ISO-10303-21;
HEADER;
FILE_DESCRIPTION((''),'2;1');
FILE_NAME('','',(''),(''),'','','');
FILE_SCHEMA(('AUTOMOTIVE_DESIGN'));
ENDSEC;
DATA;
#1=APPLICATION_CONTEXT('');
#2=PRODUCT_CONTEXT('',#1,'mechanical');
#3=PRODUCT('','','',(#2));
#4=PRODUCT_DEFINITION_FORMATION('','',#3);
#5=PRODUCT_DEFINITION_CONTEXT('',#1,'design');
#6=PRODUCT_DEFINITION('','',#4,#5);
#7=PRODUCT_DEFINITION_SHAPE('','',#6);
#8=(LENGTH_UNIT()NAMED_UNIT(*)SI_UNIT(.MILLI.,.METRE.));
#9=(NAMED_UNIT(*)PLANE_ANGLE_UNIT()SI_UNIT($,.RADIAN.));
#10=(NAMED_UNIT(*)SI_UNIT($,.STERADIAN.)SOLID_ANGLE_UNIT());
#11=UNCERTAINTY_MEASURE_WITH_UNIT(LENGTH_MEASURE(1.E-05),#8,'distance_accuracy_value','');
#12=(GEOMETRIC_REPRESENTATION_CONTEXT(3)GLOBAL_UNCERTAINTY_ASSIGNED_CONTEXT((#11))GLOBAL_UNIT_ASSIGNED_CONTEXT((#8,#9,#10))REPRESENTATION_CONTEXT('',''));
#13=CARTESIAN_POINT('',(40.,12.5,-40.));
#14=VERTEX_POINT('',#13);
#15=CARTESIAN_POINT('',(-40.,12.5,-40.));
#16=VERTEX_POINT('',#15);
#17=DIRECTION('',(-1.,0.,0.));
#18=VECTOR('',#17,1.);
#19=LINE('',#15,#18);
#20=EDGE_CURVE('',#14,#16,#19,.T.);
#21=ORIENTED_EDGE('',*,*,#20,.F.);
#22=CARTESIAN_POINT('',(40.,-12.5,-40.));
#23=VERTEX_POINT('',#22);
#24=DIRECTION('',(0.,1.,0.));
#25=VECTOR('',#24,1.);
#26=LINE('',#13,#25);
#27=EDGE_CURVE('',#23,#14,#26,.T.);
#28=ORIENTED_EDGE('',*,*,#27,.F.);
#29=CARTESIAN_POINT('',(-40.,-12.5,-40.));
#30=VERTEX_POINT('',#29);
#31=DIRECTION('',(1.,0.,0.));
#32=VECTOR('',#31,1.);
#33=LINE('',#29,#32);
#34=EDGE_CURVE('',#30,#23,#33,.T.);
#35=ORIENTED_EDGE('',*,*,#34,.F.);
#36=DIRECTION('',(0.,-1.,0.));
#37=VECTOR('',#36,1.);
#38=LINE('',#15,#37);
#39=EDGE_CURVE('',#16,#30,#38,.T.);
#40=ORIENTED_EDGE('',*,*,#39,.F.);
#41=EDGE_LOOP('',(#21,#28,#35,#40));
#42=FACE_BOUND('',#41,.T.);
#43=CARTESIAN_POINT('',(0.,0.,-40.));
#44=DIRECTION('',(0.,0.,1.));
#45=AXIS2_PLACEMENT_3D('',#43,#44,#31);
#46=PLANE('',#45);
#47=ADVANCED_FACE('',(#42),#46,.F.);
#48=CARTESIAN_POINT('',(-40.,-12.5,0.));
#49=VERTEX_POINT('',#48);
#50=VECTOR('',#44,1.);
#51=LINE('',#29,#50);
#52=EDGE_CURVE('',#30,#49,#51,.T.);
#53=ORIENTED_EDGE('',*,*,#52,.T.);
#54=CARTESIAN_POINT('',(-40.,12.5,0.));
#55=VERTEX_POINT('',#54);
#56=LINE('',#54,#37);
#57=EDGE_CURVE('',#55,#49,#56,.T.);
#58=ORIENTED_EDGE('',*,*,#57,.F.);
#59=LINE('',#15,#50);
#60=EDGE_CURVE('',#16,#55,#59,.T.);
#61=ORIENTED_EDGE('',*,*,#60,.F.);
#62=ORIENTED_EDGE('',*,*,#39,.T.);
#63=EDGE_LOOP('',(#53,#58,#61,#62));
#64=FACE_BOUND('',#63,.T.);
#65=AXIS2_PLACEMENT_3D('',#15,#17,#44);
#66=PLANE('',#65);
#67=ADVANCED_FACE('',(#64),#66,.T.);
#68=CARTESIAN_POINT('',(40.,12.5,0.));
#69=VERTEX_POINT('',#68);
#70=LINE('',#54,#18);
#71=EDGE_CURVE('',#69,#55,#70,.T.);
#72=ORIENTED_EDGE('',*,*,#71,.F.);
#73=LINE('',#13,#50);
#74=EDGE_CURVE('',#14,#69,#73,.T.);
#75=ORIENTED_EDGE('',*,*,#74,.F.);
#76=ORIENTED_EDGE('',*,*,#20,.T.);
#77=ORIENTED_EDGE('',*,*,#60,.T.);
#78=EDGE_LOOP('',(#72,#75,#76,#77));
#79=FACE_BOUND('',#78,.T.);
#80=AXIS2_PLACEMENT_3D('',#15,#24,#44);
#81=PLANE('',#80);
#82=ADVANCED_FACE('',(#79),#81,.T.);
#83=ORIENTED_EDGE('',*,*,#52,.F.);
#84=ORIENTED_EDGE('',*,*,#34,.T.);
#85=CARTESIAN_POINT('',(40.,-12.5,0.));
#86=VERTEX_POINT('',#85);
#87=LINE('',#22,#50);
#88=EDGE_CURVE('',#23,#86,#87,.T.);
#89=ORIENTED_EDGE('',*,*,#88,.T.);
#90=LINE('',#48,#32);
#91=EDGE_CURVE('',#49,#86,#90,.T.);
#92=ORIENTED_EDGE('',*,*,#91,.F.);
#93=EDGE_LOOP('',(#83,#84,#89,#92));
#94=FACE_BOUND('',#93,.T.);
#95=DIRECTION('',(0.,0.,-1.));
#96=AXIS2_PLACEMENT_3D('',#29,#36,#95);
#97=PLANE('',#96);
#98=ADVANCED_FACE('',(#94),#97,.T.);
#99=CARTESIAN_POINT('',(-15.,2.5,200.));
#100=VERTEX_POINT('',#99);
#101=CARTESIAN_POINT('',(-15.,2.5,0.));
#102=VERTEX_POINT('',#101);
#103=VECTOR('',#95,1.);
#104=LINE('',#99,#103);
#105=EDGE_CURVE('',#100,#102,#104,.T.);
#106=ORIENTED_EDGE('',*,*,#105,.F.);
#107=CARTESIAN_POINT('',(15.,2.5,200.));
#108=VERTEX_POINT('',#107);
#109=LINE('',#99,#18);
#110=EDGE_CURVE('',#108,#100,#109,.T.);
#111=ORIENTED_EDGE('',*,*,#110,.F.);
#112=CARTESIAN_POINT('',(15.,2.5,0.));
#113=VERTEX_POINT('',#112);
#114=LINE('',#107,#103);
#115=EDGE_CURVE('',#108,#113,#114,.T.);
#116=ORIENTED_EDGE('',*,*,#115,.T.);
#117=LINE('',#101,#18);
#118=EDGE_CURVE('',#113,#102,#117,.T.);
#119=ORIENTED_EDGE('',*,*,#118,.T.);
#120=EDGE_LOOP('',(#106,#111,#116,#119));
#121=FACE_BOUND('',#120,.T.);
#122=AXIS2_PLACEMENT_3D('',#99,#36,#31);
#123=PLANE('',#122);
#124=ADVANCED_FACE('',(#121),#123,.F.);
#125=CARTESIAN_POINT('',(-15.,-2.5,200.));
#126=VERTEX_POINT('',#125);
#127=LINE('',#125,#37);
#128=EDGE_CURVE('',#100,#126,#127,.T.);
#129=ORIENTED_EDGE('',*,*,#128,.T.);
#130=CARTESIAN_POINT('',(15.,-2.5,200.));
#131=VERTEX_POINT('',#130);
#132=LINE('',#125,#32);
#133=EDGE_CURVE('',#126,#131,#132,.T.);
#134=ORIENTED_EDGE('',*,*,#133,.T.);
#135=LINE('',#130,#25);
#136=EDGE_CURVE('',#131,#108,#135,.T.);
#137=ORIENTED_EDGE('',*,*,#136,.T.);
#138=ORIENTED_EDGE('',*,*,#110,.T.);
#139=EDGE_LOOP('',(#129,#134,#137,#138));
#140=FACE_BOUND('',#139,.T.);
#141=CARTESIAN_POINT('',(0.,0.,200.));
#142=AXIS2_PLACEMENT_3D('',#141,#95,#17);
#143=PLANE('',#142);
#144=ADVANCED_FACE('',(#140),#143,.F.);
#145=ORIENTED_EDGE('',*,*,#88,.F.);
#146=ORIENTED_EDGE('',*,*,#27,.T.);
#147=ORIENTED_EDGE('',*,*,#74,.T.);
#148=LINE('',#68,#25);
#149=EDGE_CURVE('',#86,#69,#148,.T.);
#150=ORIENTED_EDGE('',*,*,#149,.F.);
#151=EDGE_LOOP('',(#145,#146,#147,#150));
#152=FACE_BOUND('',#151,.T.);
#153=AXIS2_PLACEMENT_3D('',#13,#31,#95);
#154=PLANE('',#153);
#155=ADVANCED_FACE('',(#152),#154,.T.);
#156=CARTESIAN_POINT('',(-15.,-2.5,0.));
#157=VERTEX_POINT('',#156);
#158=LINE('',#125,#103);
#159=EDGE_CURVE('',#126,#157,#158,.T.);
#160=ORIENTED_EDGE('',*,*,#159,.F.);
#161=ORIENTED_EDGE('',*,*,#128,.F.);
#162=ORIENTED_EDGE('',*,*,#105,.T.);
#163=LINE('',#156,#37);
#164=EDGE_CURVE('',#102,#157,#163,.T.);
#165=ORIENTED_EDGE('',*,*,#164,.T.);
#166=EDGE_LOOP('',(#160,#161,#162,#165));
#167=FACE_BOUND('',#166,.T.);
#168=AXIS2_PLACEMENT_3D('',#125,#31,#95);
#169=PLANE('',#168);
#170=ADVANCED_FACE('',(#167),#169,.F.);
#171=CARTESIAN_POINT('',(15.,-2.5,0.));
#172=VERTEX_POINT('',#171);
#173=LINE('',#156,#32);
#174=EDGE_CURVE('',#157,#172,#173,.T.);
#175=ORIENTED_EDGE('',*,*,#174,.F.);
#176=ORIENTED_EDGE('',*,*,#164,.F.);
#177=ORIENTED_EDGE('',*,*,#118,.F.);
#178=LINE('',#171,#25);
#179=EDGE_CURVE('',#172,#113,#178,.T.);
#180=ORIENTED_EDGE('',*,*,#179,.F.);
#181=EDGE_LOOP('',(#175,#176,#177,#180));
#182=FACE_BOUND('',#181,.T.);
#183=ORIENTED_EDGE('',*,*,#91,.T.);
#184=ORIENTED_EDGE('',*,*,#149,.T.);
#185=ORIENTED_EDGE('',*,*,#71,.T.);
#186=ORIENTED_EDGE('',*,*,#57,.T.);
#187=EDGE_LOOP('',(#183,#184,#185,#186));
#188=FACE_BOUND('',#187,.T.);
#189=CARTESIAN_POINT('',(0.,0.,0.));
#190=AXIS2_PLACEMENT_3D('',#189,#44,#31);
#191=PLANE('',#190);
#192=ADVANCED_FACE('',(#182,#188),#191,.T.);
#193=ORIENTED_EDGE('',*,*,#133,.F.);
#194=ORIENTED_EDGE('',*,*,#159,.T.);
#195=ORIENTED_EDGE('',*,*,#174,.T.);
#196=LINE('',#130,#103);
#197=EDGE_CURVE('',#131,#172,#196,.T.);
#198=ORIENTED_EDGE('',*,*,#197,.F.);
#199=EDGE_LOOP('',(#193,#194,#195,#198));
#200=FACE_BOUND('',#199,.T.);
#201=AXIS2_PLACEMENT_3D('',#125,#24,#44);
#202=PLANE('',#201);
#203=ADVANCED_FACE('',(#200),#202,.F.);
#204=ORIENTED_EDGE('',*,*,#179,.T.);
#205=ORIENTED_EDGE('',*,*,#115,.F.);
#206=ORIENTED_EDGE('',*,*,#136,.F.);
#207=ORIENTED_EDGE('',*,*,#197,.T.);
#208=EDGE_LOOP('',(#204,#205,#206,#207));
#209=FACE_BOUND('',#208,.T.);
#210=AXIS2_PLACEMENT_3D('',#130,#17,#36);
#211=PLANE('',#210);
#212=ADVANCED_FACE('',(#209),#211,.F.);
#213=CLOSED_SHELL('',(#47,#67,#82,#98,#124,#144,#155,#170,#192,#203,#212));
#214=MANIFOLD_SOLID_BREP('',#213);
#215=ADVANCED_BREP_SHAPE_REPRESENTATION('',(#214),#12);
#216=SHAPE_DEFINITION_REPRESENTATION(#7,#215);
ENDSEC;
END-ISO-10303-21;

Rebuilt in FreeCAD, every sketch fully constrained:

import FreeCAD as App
import Part
import Sketcher
from FreeCAD import Vector
Q = App.Units.Quantity

doc = App.newDocument("Part")
body = doc.addObject("PartDesign::Body", "Body")

sketch1 = body.newObject("Sketcher::SketchObject", "Sketch")
sketch1.AttachmentSupport = (doc.getObject("XY_Plane"), [""])
sketch1.MapMode = "FlatFace"
sketch1.addGeometry([
    Part.LineSegment(Vector(-15, 2, 0), Vector(-15, -2, 0)),
    Part.LineSegment(Vector(-15, -2, 0), Vector(15, -2, 0)),
    Part.LineSegment(Vector(15, -2, 0), Vector(15, 2, 0)),
    Part.LineSegment(Vector(15, 2, 0), Vector(-15, 2, 0)),
], False)
sketch1.addConstraint([
    Sketcher.Constraint("Coincident", 0, 2, 1, 1),
    Sketcher.Constraint("Coincident", 1, 2, 2, 1),
    Sketcher.Constraint("Coincident", 2, 2, 3, 1),
    Sketcher.Constraint("Coincident", 3, 2, 0, 1),
    Sketcher.Constraint("Vertical", 0),
    Sketcher.Constraint("Horizontal", 1),
    Sketcher.Constraint("Vertical", 2),
    Sketcher.Constraint("Horizontal", 3),
    Sketcher.Constraint("Symmetric", 0, 2, 2, 2, -1, 1),
    Sketcher.Constraint("DistanceX", 1, 1, 1, 2, Q("30 mm")),
    Sketcher.Constraint("DistanceY", 0, 2, 0, 1, Q("5 mm")),
])
pad1 = body.newObject("PartDesign::Pad", "Pad")
pad1.Profile = sketch1
pad1.Length = 200

sketch2 = body.newObject("Sketcher::SketchObject", "Sketch001")
sketch2.AttachmentSupport = (doc.getObject("XY_Plane"), [""])
sketch2.MapMode = "FlatFace"
sketch2.addGeometry([
    Part.LineSegment(Vector(-40, 12, 0), Vector(-40, -12, 0)),
    Part.LineSegment(Vector(-40, -12, 0), Vector(40, -12, 0)),
    Part.LineSegment(Vector(40, -12, 0), Vector(40, 12, 0)),
    Part.LineSegment(Vector(40, 12, 0), Vector(-40, 12, 0)),
], False)
sketch2.addConstraint([
    Sketcher.Constraint("Coincident", 0, 2, 1, 1),
    Sketcher.Constraint("Coincident", 1, 2, 2, 1),
    Sketcher.Constraint("Coincident", 2, 2, 3, 1),
    Sketcher.Constraint("Coincident", 3, 2, 0, 1),
    Sketcher.Constraint("Vertical", 0),
    Sketcher.Constraint("Horizontal", 1),
    Sketcher.Constraint("Vertical", 2),
    Sketcher.Constraint("Horizontal", 3),
    Sketcher.Constraint("Symmetric", 0, 2, 2, 2, -1, 1),
    Sketcher.Constraint("DistanceX", 1, 1, 1, 2, Q("80 mm")),
    Sketcher.Constraint("DistanceY", 0, 2, 0, 1, Q("25 mm")),
])
pad2 = body.newObject("PartDesign::Pad", "Pad001")
pad2.Profile = sketch2
pad2.Length = 40
pad2.Reversed = True

doc.recompute()
